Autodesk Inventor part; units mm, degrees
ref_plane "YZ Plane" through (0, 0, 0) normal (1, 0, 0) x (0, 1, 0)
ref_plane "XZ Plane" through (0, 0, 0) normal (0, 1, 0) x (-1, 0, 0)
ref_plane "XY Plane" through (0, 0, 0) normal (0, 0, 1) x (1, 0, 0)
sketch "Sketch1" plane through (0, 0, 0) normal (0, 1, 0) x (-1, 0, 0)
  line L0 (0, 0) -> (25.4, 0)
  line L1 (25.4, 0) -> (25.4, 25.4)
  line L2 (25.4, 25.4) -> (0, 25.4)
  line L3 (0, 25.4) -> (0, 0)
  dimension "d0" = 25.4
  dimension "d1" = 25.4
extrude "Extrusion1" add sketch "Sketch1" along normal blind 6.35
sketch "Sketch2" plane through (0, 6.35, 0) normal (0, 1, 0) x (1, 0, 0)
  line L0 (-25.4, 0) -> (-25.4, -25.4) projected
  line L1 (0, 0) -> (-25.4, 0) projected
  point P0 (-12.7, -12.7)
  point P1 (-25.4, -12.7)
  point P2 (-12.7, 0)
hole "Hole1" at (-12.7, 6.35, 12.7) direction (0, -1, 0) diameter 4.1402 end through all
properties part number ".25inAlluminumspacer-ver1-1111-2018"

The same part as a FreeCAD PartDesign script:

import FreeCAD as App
import Part
import Sketcher

V = App.Vector
Q = App.Units.Quantity


def add_polygon(sketch, points):
    """Adds a closed chain of lines whose ends are joined by coincident constraints."""
    first, n = sketch.GeometryCount, len(points)
    for a, b in zip(points, points[1:] + points[:1]):
        sketch.addGeometry(Part.LineSegment(App.Vector(*a, 0), App.Vector(*b, 0)), False)
    for i in range(n):
        sketch.addConstraint(Sketcher.Constraint("Coincident", first + i, 2, first + (i + 1) % n, 1))

doc = App.newDocument("Part")
body = doc.addObject("PartDesign::Body", "Body")

# Sketch on XZ plane
sketch1 = body.newObject("Sketcher::SketchObject", "Sketch")
sketch1.AttachmentSupport = (doc.getObject("XZ_Plane"), [""])
sketch1.MapMode = "FlatFace"
add_polygon(sketch1, [(0, 25), (0, 0), (-25, 0), (-25, 25)])  # lines 0-3
sketch1.addConstraint([
    Sketcher.Constraint("Vertical", 0),
    Sketcher.Constraint("Horizontal", 1),
    Sketcher.Constraint("Vertical", 2),
    Sketcher.Constraint("Horizontal", 3),
    Sketcher.Constraint("Coincident", 0, 2, -1, 1),
    Sketcher.Constraint("Equal", 3, 0),
    Sketcher.Constraint("DistanceX", 1, 2, 1, 1, Q("1 in")),
])
pad1 = body.newObject("PartDesign::Pad", "Pad")
pad1.Profile = sketch1
pad1.Length = Q("0.25 in")
pad1.Reversed = True

# Sketch on XZ plane
sketch2 = body.newObject("Sketcher::SketchObject", "Sketch001")
sketch2.AttachmentSupport = (doc.getObject("XZ_Plane"), [""])
sketch2.MapMode = "FlatFace"
sketch2.AttachmentOffset = App.Placement(V(0, 0, -0.25 * 25.4), App.Rotation())
sketch2.addGeometry(Part.Circle(V(-12.7, 12.7, 0), V(0, 0, 1), 2.1), False)
sketch2.addConstraint([
    Sketcher.Constraint("Diameter", 0, Q("0.163 in")),
    Sketcher.Constraint("DistanceX", 0, 3, -1, 1, Q("0.5 in")),
    Sketcher.Constraint("DistanceY", -1, 1, 0, 3, Q("0.5 in")),
])
doc.recompute()
hole = body.newObject("PartDesign::Hole", "Hole")
hole.Profile = sketch2
hole.ThreadType = "None"
hole.Diameter = Q("0.163 in")
hole.DepthType = "ThroughAll"
hole.Reversed = True

doc.recompute()
